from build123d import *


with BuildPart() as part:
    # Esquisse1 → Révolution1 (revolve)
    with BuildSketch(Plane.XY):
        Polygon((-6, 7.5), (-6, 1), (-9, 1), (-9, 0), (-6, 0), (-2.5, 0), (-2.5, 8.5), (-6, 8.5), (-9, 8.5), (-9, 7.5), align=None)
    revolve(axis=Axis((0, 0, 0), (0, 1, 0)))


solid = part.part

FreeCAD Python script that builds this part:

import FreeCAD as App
import Part
import Sketcher
Q = App.Units.Quantity

doc = App.newDocument("Part")
body = doc.addObject("PartDesign::Body", "Body")

# Sketch on XY plane
sketch1 = doc.addObject("Sketcher::SketchObject", "Sketch")
body.addObject(sketch1)
sketch1.AttachmentSupport = (doc.XY_Plane, [""])
sketch1.MapMode = "FlatFace"
sketch1.addGeometry([
    Part.LineSegment(App.Vector(-6, 7.5, 0), App.Vector(-6, 1, 0)),  # 0
    Part.LineSegment(App.Vector(-6, 1, 0), App.Vector(-9, 1, 0)),  # 1
    Part.LineSegment(App.Vector(-9, 1, 0), App.Vector(-9, 0, 0)),  # 2
    Part.LineSegment(App.Vector(-9, 0, 0), App.Vector(-2.5, 0, 0)),  # 3
    Part.LineSegment(App.Vector(-2.5, 0, 0), App.Vector(-2.5, 8.5, 0)),  # 4
    Part.LineSegment(App.Vector(-2.5, 8.5, 0), App.Vector(-9, 8.5, 0)),  # 5
    Part.LineSegment(App.Vector(-9, 8.5, 0), App.Vector(-9, 7.5, 0)),  # 6
    Part.LineSegment(App.Vector(-9, 7.5, 0), App.Vector(-6, 7.5, 0)),  # 7
], False)
sketch1.addConstraint([
    Sketcher.Constraint("Coincident", 0, 2, 1, 1),
    Sketcher.Constraint("Coincident", 1, 2, 2, 1),
    Sketcher.Constraint("Coincident", 2, 2, 3, 1),
    Sketcher.Constraint("Coincident", 3, 2, 4, 1),
    Sketcher.Constraint("Coincident", 4, 2, 5, 1),
    Sketcher.Constraint("Coincident", 5, 2, 6, 1),
    Sketcher.Constraint("Coincident", 6, 2, 7, 1),
    Sketcher.Constraint("Coincident", 7, 2, 0, 1),
    Sketcher.Constraint("Vertical", 0),
    Sketcher.Constraint("Horizontal", 1),
    Sketcher.Constraint("Vertical", 2),
    Sketcher.Constraint("Horizontal", 3),
    Sketcher.Constraint("Vertical", 4),
    Sketcher.Constraint("Horizontal", 5),
    Sketcher.Constraint("Vertical", 6),
    Sketcher.Constraint("Horizontal", 7),
    Sketcher.Constraint("PointOnObject", 2, 2, -1),
    Sketcher.Constraint("Vertical", 2, 2, 5, 2),
    Sketcher.Constraint("Equal", 5, 0),
    Sketcher.Constraint("Equal", 2, 6),
    Sketcher.Constraint("DistanceX", 1, 2, 1, 1, Q("3 mm")),
    Sketcher.Constraint("DistanceY", 2, 2, 2, 1, Q("1 mm")),
    Sketcher.Constraint("DistanceX", 3, 1, 3, 2, Q("6.5 mm")),
    Sketcher.Constraint("DistanceX", 0, 2, -1, 1, Q("6 mm")),
])
revolution = doc.addObject("PartDesign::Revolution", "Revolution")
body.addObject(revolution)
revolution.Profile = sketch1
revolution.ReferenceAxis = (sketch1, ["V_Axis"])
revolution.Angle = 360

doc.recompute()
